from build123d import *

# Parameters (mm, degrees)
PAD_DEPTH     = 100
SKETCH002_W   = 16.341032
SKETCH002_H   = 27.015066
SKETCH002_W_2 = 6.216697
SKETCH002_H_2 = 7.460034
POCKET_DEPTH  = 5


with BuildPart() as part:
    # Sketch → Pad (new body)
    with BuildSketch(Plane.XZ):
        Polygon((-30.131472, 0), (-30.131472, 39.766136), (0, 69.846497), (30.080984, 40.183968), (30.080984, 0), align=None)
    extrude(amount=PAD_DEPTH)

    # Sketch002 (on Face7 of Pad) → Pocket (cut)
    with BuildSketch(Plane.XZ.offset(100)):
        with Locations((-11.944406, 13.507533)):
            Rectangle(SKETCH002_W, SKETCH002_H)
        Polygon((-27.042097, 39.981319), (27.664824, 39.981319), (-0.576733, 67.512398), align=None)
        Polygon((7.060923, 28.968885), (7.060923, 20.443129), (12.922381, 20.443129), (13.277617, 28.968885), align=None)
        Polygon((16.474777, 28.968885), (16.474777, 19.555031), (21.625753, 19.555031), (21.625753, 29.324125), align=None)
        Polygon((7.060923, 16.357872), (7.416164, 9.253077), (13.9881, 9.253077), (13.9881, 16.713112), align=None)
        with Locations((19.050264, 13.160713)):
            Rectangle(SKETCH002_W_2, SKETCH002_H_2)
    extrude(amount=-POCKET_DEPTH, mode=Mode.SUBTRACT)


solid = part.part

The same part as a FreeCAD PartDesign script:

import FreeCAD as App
import Part
import Sketcher

V = App.Vector
Q = App.Units.Quantity

doc = App.newDocument("Part")
body = doc.addObject("PartDesign::Body", "Body")

sketch1 = doc.addObject("Sketcher::SketchObject", "Sketch")
body.addObject(sketch1)
sketch1.AttachmentSupport = (doc.XZ_Plane, [""])
sketch1.MapMode = "FlatFace"
sketch1.addGeometry(Part.LineSegment(V(-30.131472, 39.766136, 0), V(-30.131472, 0, 0)), False)
sketch1.addGeometry(Part.LineSegment(V(-30.131472, 0, 0), V(30.080984, 0, 0)), False)
sketch1.addGeometry(Part.LineSegment(V(30.080984, 0, 0), V(30.080984, 40.183968, 0)), False)
sketch1.addGeometry(Part.LineSegment(V(30.080984, 40.183968, 0), V(0, 69.846497, 0)), False)
sketch1.addGeometry(Part.LineSegment(V(0, 69.846497, 0), V(-30.131472, 39.766136, 0)), False)
sketch1.addConstraint(Sketcher.Constraint("Coincident", 0, 2, 1, 1))
sketch1.addConstraint(Sketcher.Constraint("Coincident", 1, 2, 2, 1))
sketch1.addConstraint(Sketcher.Constraint("Coincident", 2, 2, 3, 1))
sketch1.addConstraint(Sketcher.Constraint("Coincident", 3, 2, 4, 1))
sketch1.addConstraint(Sketcher.Constraint("Coincident", 4, 2, 0, 1))
sketch1.addConstraint(Sketcher.Constraint("Vertical", 0))
sketch1.addConstraint(Sketcher.Constraint("Horizontal", 1))
sketch1.addConstraint(Sketcher.Constraint("Vertical", 2))
sketch1.addConstraint(Sketcher.Constraint("PointOnObject", 0, 2, -1))
sketch1.addConstraint(Sketcher.Constraint("PointOnObject", 3, 2, -2))
sketch1.addConstraint(Sketcher.Constraint("Distance", 3, Q("42.246079 mm")))
sketch1.addConstraint(Sketcher.Constraint("Distance", 4, Q("42.576211 mm")))
sketch1.addConstraint(Sketcher.Constraint("DistanceX", 1, 1, 1, 2, Q("60.212456 mm")))
sketch1.addConstraint(Sketcher.Constraint("DistanceY", 0, 2, 0, 1, Q("39.766136 mm")))
sketch1.addConstraint(Sketcher.Constraint("DistanceY", 2, 1, 2, 2, Q("40.183968 mm")))
pad1 = doc.addObject("PartDesign::Pad", "Pad")
body.addObject(pad1)
pad1.Profile = sketch1
pad1.Length = 100

sketch2 = doc.addObject("Sketcher::SketchObject", "Sketch001")
body.addObject(sketch2)
sketch2.AttachmentSupport = (doc.XZ_Plane, [""])
sketch2.MapMode = "FlatFace"
sketch2.AttachmentOffset = App.Placement(V(0, 0, 100), App.Rotation())
sketch2.addGeometry(Part.LineSegment(V(-20.114922, 27.015066, 0), V(-20.114922, 0, 0)), False)
sketch2.addGeometry(Part.LineSegment(V(-20.114922, 0, 0), V(-3.77389, 0, 0)), False)
sketch2.addGeometry(Part.LineSegment(V(-3.77389, 0, 0), V(-3.77389, 27.015066, 0)), False)
sketch2.addGeometry(Part.LineSegment(V(-3.77389, 27.015066, 0), V(-20.114922, 27.015066, 0)), False)
sketch2.addGeometry(Part.LineSegment(V(-27.042097, 39.981319, 0), V(27.664824, 39.981319, 0)), False)
sketch2.addGeometry(Part.LineSegment(V(27.664824, 39.981319, 0), V(-0.576733, 67.512398, 0)), False)
sketch2.addGeometry(Part.LineSegment(V(-0.576733, 67.512398, 0), V(-27.042097, 39.981319, 0)), False)
sketch2.addGeometry(Part.LineSegment(V(7.060923, 28.968885, 0), V(7.060923, 20.443129, 0)), False)
sketch2.addGeometry(Part.LineSegment(V(7.060923, 20.443129, 0), V(12.922381, 20.443129, 0)), False)
sketch2.addGeometry(Part.LineSegment(V(12.922381, 20.443129, 0), V(13.277617, 28.968885, 0)), False)
sketch2.addGeometry(Part.LineSegment(V(13.277617, 28.968885, 0), V(7.060923, 28.968885, 0)), False)
sketch2.addGeometry(Part.LineSegment(V(16.474777, 28.968885, 0), V(16.474777, 19.555031, 0)), False)
sketch2.addGeometry(Part.LineSegment(V(16.474777, 19.555031, 0), V(21.625753, 19.555031, 0)), False)
sketch2.addGeometry(Part.LineSegment(V(21.625753, 19.555031, 0), V(21.625753, 29.324125, 0)), False)
sketch2.addGeometry(Part.LineSegment(V(21.625753, 29.324125, 0), V(16.474777, 28.968885, 0)), False)
sketch2.addGeometry(Part.LineSegment(V(7.060923, 16.357872, 0), V(7.416164, 9.253077, 0)), False)
sketch2.addGeometry(Part.LineSegment(V(7.416164, 9.253077, 0), V(13.9881, 9.253077, 0)), False)
sketch2.addGeometry(Part.LineSegment(V(13.9881, 9.253077, 0), V(13.9881, 16.713112, 0)), False)
sketch2.addGeometry(Part.LineSegment(V(13.9881, 16.713112, 0), V(7.060923, 16.357872, 0)), False)
sketch2.addGeometry(Part.LineSegment(V(15.941916, 16.89073, 0), V(15.941916, 9.430696, 0)), False)
sketch2.addGeometry(Part.LineSegment(V(15.941916, 9.430696, 0), V(22.158613, 9.430696, 0)), False)
sketch2.addGeometry(Part.LineSegment(V(22.158613, 9.430696, 0), V(22.158613, 16.89073, 0)), False)
sketch2.addGeometry(Part.LineSegment(V(22.158613, 16.89073, 0), V(15.941916, 16.89073, 0)), False)
sketch2.addConstraint(Sketcher.Constraint("Coincident", 0, 2, 1, 1))
sketch2.addConstraint(Sketcher.Constraint("Coincident", 1, 2, 2, 1))
sketch2.addConstraint(Sketcher.Constraint("Coincident", 2, 2, 3, 1))
sketch2.addConstraint(Sketcher.Constraint("Coincident", 3, 2, 0, 1))
sketch2.addConstraint(Sketcher.Constraint("Coincident", 4, 2, 5, 1))
sketch2.addConstraint(Sketcher.Constraint("Coincident", 5, 2, 6, 1))
sketch2.addConstraint(Sketcher.Constraint("Coincident", 6, 2, 4, 1))
sketch2.addConstraint(Sketcher.Constraint("Coincident", 7, 2, 8, 1))
sketch2.addConstraint(Sketcher.Constraint("Coincident", 8, 2, 9, 1))
sketch2.addConstraint(Sketcher.Constraint("Coincident", 9, 2, 10, 1))
sketch2.addConstraint(Sketcher.Constraint("Coincident", 10, 2, 7, 1))
sketch2.addConstraint(Sketcher.Constraint("Coincident", 11, 2, 12, 1))
sketch2.addConstraint(Sketcher.Constraint("Coincident", 12, 2, 13, 1))
sketch2.addConstraint(Sketcher.Constraint("Coincident", 13, 2, 14, 1))
sketch2.addConstraint(Sketcher.Constraint("Coincident", 14, 2, 11, 1))
sketch2.addConstraint(Sketcher.Constraint("Coincident", 15, 2, 16, 1))
sketch2.addConstraint(Sketcher.Constraint("Coincident", 16, 2, 17, 1))
sketch2.addConstraint(Sketcher.Constraint("Coincident", 17, 2, 18, 1))
sketch2.addConstraint(Sketcher.Constraint("Coincident", 18, 2, 15, 1))
sketch2.addConstraint(Sketcher.Constraint("Coincident", 19, 2, 20, 1))
sketch2.addConstraint(Sketcher.Constraint("Coincident", 20, 2, 21, 1))
sketch2.addConstraint(Sketcher.Constraint("Coincident", 21, 2, 22, 1))
sketch2.addConstraint(Sketcher.Constraint("Coincident", 22, 2, 19, 1))
sketch2.addConstraint(Sketcher.Constraint("Vertical", 0))
sketch2.addConstraint(Sketcher.Constraint("Horizontal", 1))
sketch2.addConstraint(Sketcher.Constraint("Vertical", 2))
sketch2.addConstraint(Sketcher.Constraint("Horizontal", 3))
sketch2.addConstraint(Sketcher.Constraint("Horizontal", 4))
sketch2.addConstraint(Sketcher.Constraint("Vertical", 7))
sketch2.addConstraint(Sketcher.Constraint("Horizontal", 8))
sketch2.addConstraint(Sketcher.Constraint("Horizontal", 10))
sketch2.addConstraint(Sketcher.Constraint("Vertical", 11))
sketch2.addConstraint(Sketcher.Constraint("Horizontal", 12))
sketch2.addConstraint(Sketcher.Constraint("Vertical", 13))
sketch2.addConstraint(Sketcher.Constraint("Horizontal", 16))
sketch2.addConstraint(Sketcher.Constraint("Vertical", 17))
sketch2.addConstraint(Sketcher.Constraint("Vertical", 19))
sketch2.addConstraint(Sketcher.Constraint("Horizontal", 20))
sketch2.addConstraint(Sketcher.Constraint("Vertical", 21))
sketch2.addConstraint(Sketcher.Constraint("Horizontal", 22))
sketch2.addConstraint(Sketcher.Constraint("PointOnObject", 0, 2, -1))
sketch2.addConstraint(Sketcher.Constraint("Horizontal", 10, 2, 14, 2))
sketch2.addConstraint(Sketcher.Constraint("Vertical", 10, 2, 18, 2))
sketch2.addConstraint(Sketcher.Constraint("Equal", 17, 19))
sketch2.addConstraint(Sketcher.Constraint("DistanceX", 1, 1, 1, 2, Q("16.341032 mm")))
sketch2.addConstraint(Sketcher.Constraint("DistanceX", 4, 1, 4, 2, Q("54.706921 mm")))
sketch2.addConstraint(Sketcher.Constraint("DistanceY", -1, 1, 5, 2, Q("67.512398 mm")))
sketch2.addConstraint(Sketcher.Constraint("DistanceX", -1, 1, 16, 2, Q("13.9881 mm")))
sketch2.addConstraint(Sketcher.Constraint("DistanceX", 7, 2, 4, 2, Q("20.603901 mm")))
sketch2.addConstraint(Sketcher.Constraint("DistanceY", 21, 2, 12, 2, Q("2.664301 mm")))
sketch2.addConstraint(Sketcher.Constraint("DistanceY", 22, 2, 8, 2, Q("3.552399 mm")))
sketch2.addConstraint(Sketcher.Constraint("Distance", 5, Q("39.440409 mm")))
sketch2.addConstraint(Sketcher.Constraint("Distance", 14, Q("5.163211 mm")))
sketch2.addConstraint(Sketcher.Constraint("Distance", 15, Q("7.113671 mm")))
sketch2.addConstraint(Sketcher.Constraint("Distance", 18, Q("6.93628 mm")))
sketch2.addConstraint(Sketcher.Constraint("DistanceX", 8, 1, 8, 2, Q("5.861458 mm")))
sketch2.addConstraint(Sketcher.Constraint("DistanceX", 10, 2, 10, 1, Q("6.216694 mm")))
sketch2.addConstraint(Sketcher.Constraint("DistanceX", 12, 1, 12, 2, Q("5.150976 mm")))
sketch2.addConstraint(Sketcher.Constraint("DistanceX", 16, 1, 16, 2, Q("6.571936 mm")))
sketch2.addConstraint(Sketcher.Constraint("DistanceX", 20, 1, 20, 2, Q("6.216697 mm")))
sketch2.addConstraint(Sketcher.Constraint("DistanceY", 0, 2, 0, 1, Q("27.015066 mm")))
sketch2.addConstraint(Sketcher.Constraint("DistanceY", 7, 2, 7, 1, Q("8.525756 mm")))
sketch2.addConstraint(Sketcher.Constraint("DistanceY", 17, 1, 17, 2, Q("7.460035 mm")))
sketch2.addConstraint(Sketcher.Constraint("DistanceX", 0, 2, -1, 1, Q("20.114922 mm")))
sketch2.addConstraint(Sketcher.Constraint("DistanceY", -1, 1, 4, 2, Q("39.981319 mm")))
sketch2.addConstraint(Sketcher.Constraint("DistanceY", -1, 1, 7, 2, Q("20.443129 mm")))
sketch2.addConstraint(Sketcher.Constraint("DistanceY", -1, 1, 17, 2, Q("16.713112 mm")))
sketch2.addConstraint(Sketcher.Constraint("DistanceX", 9, 2, 11, 2, Q("3.19716 mm")))
sketch2.addConstraint(Sketcher.Constraint("DistanceX", 15, 2, 19, 2, Q("8.525752 mm")))
pocket1 = doc.addObject("PartDesign::Pocket", "Pocket")
body.addObject(pocket1)
pocket1.Profile = sketch2
pocket1.Length = 5

doc.recompute()
